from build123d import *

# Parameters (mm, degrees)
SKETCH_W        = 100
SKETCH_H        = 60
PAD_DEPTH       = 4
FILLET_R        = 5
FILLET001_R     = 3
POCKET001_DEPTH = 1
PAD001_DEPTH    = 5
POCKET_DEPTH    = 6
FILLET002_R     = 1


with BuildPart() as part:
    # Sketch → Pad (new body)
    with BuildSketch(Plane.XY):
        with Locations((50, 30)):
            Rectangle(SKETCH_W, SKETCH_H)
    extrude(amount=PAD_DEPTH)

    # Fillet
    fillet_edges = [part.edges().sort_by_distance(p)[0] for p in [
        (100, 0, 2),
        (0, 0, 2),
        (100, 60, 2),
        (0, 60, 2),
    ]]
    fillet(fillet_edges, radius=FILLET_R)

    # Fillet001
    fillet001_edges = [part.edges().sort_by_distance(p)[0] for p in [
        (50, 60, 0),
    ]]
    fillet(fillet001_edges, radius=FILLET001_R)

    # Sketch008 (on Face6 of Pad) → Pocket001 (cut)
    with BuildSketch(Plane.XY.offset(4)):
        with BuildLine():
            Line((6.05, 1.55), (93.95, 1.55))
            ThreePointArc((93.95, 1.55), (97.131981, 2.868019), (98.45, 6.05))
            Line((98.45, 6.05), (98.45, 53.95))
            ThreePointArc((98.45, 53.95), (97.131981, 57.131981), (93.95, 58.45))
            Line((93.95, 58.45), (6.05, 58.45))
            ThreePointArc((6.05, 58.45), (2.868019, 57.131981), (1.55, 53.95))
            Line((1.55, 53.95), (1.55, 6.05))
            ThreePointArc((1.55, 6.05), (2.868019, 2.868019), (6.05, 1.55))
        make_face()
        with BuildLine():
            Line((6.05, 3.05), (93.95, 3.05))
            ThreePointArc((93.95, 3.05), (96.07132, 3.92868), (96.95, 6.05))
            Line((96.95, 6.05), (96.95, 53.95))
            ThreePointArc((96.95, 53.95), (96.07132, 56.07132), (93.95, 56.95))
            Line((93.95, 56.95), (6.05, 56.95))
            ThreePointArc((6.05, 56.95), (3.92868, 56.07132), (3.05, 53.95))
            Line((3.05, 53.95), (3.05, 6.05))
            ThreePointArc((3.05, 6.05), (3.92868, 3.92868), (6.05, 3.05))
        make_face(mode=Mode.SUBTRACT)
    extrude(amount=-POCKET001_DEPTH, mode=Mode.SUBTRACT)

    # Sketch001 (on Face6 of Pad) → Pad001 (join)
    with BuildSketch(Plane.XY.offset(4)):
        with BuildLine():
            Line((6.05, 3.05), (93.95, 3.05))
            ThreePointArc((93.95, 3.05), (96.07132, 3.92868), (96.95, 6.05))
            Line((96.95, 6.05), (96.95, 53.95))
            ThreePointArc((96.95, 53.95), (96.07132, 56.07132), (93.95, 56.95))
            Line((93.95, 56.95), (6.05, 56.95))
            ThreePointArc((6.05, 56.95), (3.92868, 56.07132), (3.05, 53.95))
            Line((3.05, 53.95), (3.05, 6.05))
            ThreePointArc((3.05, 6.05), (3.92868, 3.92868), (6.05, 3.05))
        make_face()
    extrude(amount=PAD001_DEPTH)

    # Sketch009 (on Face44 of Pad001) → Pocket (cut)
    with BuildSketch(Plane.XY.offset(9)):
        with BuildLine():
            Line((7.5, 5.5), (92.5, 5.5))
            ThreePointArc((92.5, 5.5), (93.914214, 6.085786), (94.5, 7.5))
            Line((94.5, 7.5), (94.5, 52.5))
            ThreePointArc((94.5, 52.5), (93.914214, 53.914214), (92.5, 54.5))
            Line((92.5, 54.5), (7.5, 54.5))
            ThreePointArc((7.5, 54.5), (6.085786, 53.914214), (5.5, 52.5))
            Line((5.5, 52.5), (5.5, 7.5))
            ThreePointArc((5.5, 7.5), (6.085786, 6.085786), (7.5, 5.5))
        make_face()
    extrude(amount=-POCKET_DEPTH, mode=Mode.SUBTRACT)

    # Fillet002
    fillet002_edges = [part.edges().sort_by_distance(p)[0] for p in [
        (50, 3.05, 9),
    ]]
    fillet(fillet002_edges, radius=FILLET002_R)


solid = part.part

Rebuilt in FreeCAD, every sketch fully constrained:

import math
import FreeCAD as App
import Part
import Sketcher

V = App.Vector
Q = App.Units.Quantity


def edges_at(feature, points):
    """Names of the edges that pass closest to the given points."""
    edges = feature.Shape.Edges
    near = lambda p: min(range(len(edges)), key=lambda i: edges[i].distToShape(Part.Vertex(*p))[0])
    return sorted({f"Edge{near(p) + 1}" for p in points})

doc = App.newDocument("Part")
body = doc.addObject("PartDesign::Body", "Body")

# Sketch on XY plane
sketch1 = doc.addObject("Sketcher::SketchObject", "Sketch")
body.addObject(sketch1)
sketch1.AttachmentSupport = (doc.XY_Plane, [""])
sketch1.MapMode = "FlatFace"
sketch1.addGeometry(Part.LineSegment(V(0, 60, 0), V(0, 0, 0)), False)
sketch1.addGeometry(Part.LineSegment(V(0, 0, 0), V(100, 0, 0)), False)
sketch1.addGeometry(Part.LineSegment(V(100, 0, 0), V(100, 60, 0)), False)
sketch1.addGeometry(Part.LineSegment(V(100, 60, 0), V(0, 60, 0)), False)
sketch1.addConstraint(Sketcher.Constraint("Coincident", 0, 2, 1, 1))
sketch1.addConstraint(Sketcher.Constraint("Coincident", 1, 2, 2, 1))
sketch1.addConstraint(Sketcher.Constraint("Coincident", 2, 2, 3, 1))
sketch1.addConstraint(Sketcher.Constraint("Coincident", 3, 2, 0, 1))
sketch1.addConstraint(Sketcher.Constraint("Vertical", 0))
sketch1.addConstraint(Sketcher.Constraint("Horizontal", 1))
sketch1.addConstraint(Sketcher.Constraint("Vertical", 2))
sketch1.addConstraint(Sketcher.Constraint("Horizontal", 3))
sketch1.addConstraint(Sketcher.Constraint("Coincident", 0, 2, -1, 1))
sketch1.addConstraint(Sketcher.Constraint("DistanceX", 1, 1, 1, 2, Q("100 mm")))
sketch1.addConstraint(Sketcher.Constraint("DistanceY", 0, 2, 0, 1, Q("60 mm")))
pad1 = doc.addObject("PartDesign::Pad", "Pad")
body.addObject(pad1)
pad1.Profile = sketch1
pad1.Length = 4
doc.recompute()

fillet = doc.addObject("PartDesign::Fillet", "Fillet")
body.addObject(fillet)
fillet.Base = (pad1, edges_at(pad1, [
    (100, 0, 2),
    (0, 0, 2),
    (100, 60, 2),
    (0, 60, 2),
]))
fillet.Radius = 5
doc.recompute()

fillet2 = doc.addObject("PartDesign::Fillet", "Fillet001")
body.addObject(fillet2)
fillet2.Base = (fillet, edges_at(fillet, [(50, 60, 0)]))
fillet2.Radius = 3

# Sketch on XY plane
sketch2 = doc.addObject("Sketcher::SketchObject", "Sketch001")
body.addObject(sketch2)
sketch2.AttachmentSupport = (doc.XY_Plane, [""])
sketch2.MapMode = "FlatFace"
sketch2.AttachmentOffset = App.Placement(V(0, 0, 4), App.Rotation())
sketch2.addGeometry(Part.LineSegment(V(6, 1.6, 0), V(94, 1.6, 0)), False)
sketch2.addGeometry(Part.ArcOfCircle(Part.Circle(V(94, 6, 0), V(0, 0, 1), 4.5), math.radians(-90), math.radians(0)), False)
sketch2.addGeometry(Part.LineSegment(V(98.5, 6, 0), V(98.5, 54, 0)), False)
sketch2.addGeometry(Part.ArcOfCircle(Part.Circle(V(94, 54, 0), V(0, 0, 1), 4.5), math.radians(0), math.radians(90)), False)
sketch2.addGeometry(Part.LineSegment(V(94, 58.5, 0), V(6, 58.5, 0)), False)
sketch2.addGeometry(Part.ArcOfCircle(Part.Circle(V(6, 54, 0), V(0, 0, 1), 4.5), math.radians(90), math.radians(180)), False)
sketch2.addGeometry(Part.LineSegment(V(1.6, 54, 0), V(1.6, 6, 0)), False)
sketch2.addGeometry(Part.ArcOfCircle(Part.Circle(V(6, 6, 0), V(0, 0, 1), 4.5), math.radians(180), math.radians(270)), False)
sketch2.addGeometry(Part.LineSegment(V(94, 3, 0), V(6, 3, 0)), False)
sketch2.addGeometry(Part.ArcOfCircle(Part.Circle(V(6.1, 6.1, 0), V(0, 0, 1), 3), math.radians(-180), math.radians(-90)), False)
sketch2.addGeometry(Part.LineSegment(V(3, 6, 0), V(3, 54, 0)), False)
sketch2.addGeometry(Part.ArcOfCircle(Part.Circle(V(6.1, 53.9, 0), V(0, 0, 1), 3), math.radians(90), math.radians(180)), False)
sketch2.addGeometry(Part.LineSegment(V(6, 57, 0), V(94, 57, 0)), False)
sketch2.addGeometry(Part.ArcOfCircle(Part.Circle(V(93.9, 53.9, 0), V(0, 0, 1), 3), math.radians(0), math.radians(90)), False)
sketch2.addGeometry(Part.LineSegment(V(97, 54, 0), V(97, 6, 0)), False)
sketch2.addGeometry(Part.ArcOfCircle(Part.Circle(V(93.9, 6.1, 0), V(0, 0, 1), 3), math.radians(-90), math.radians(0)), False)
sketch2.addConstraint(Sketcher.Constraint("Tangent", 0, 2, 1, 1))
sketch2.addConstraint(Sketcher.Constraint("Tangent", 1, 2, 2, 1))
sketch2.addConstraint(Sketcher.Constraint("Tangent", 2, 2, 3, 1))
sketch2.addConstraint(Sketcher.Constraint("Tangent", 3, 2, 4, 1))
sketch2.addConstraint(Sketcher.Constraint("Tangent", 4, 2, 5, 1))
sketch2.addConstraint(Sketcher.Constraint("Tangent", 5, 2, 6, 1))
sketch2.addConstraint(Sketcher.Constraint("Tangent", 6, 2, 7, 1))
sketch2.addConstraint(Sketcher.Constraint("Tangent", 7, 2, 0, 1))
sketch2.addConstraint(Sketcher.Constraint("Tangent", 8, 2, 9, 2))
sketch2.addConstraint(Sketcher.Constraint("Tangent", 9, 1, 10, 1))
sketch2.addConstraint(Sketcher.Constraint("Tangent", 10, 2, 11, 2))
sketch2.addConstraint(Sketcher.Constraint("Tangent", 11, 1, 12, 1))
sketch2.addConstraint(Sketcher.Constraint("Tangent", 12, 2, 13, 2))
sketch2.addConstraint(Sketcher.Constraint("Tangent", 13, 1, 14, 1))
sketch2.addConstraint(Sketcher.Constraint("Tangent", 14, 2, 15, 2))
sketch2.addConstraint(Sketcher.Constraint("Tangent", 15, 1, 8, 1))
sketch2.addConstraint(Sketcher.Constraint("Horizontal", 0))
sketch2.addConstraint(Sketcher.Constraint("Vertical", 2))
sketch2.addConstraint(Sketcher.Constraint("Horizontal", 4))
sketch2.addConstraint(Sketcher.Constraint("Vertical", 6))
sketch2.addConstraint(Sketcher.Constraint("Horizontal", 8))
sketch2.addConstraint(Sketcher.Constraint("Vertical", 10))
sketch2.addConstraint(Sketcher.Constraint("Horizontal", 12))
sketch2.addConstraint(Sketcher.Constraint("Vertical", 14))
sketch2.addConstraint(Sketcher.Constraint("Coincident", 9, 3, 7, 3))
sketch2.addConstraint(Sketcher.Constraint("Coincident", 11, 3, 5, 3))
sketch2.addConstraint(Sketcher.Constraint("Coincident", 13, 3, 3, 3))
sketch2.addConstraint(Sketcher.Constraint("Equal", 1, 3))
sketch2.addConstraint(Sketcher.Constraint("Equal", 3, 5))
sketch2.addConstraint(Sketcher.Constraint("Equal", 5, 7))
sketch2.addConstraint(Sketcher.Constraint("Equal", 13, 15))
sketch2.addConstraint(Sketcher.Constraint("Radius", 9, Q("3.000001 mm")))
sketch2.addConstraint(Sketcher.Constraint("Radius", 1, Q("4.499998 mm")))
sketch2.addConstraint(Sketcher.Constraint("DistanceX", 0, 1, 0, 2, Q("87.9 mm")))
sketch2.addConstraint(Sketcher.Constraint("DistanceY", 2, 1, 2, 2, Q("47.9 mm")))
sketch2.addConstraint(Sketcher.Constraint("DistanceX", -1, 1, 1, 3, Q("93.950002 mm")))
sketch2.addConstraint(Sketcher.Constraint("DistanceY", -1, 1, 1, 3, Q("6.049998 mm")))
pocket1 = doc.addObject("PartDesign::Pocket", "Pocket")
body.addObject(pocket1)
pocket1.Profile = sketch2
pocket1.Length = 1

# Sketch on XY plane
sketch3 = doc.addObject("Sketcher::SketchObject", "Sketch002")
body.addObject(sketch3)
sketch3.AttachmentSupport = (doc.XY_Plane, [""])
sketch3.MapMode = "FlatFace"
sketch3.AttachmentOffset = App.Placement(V(0, 0, 4), App.Rotation())
sketch3.addGeometry(Part.LineSegment(V(6, 3, 0), V(94, 3, 0)), False)
sketch3.addGeometry(Part.ArcOfCircle(Part.Circle(V(93.9, 6.1, 0), V(0, 0, 1), 3), math.radians(-90), math.radians(0)), False)
sketch3.addGeometry(Part.LineSegment(V(97, 6, 0), V(97, 54, 0)), False)
sketch3.addGeometry(Part.ArcOfCircle(Part.Circle(V(93.9, 53.9, 0), V(0, 0, 1), 3), math.radians(0), math.radians(90)), False)
sketch3.addGeometry(Part.LineSegment(V(94, 57, 0), V(6, 57, 0)), False)
sketch3.addGeometry(Part.ArcOfCircle(Part.Circle(V(6.1, 53.9, 0), V(0, 0, 1), 3), math.radians(90), math.radians(180)), False)
sketch3.addGeometry(Part.LineSegment(V(3, 54, 0), V(3, 6, 0)), False)
sketch3.addGeometry(Part.ArcOfCircle(Part.Circle(V(6.1, 6.1, 0), V(0, 0, 1), 3), math.radians(-180), math.radians(-90)), False)
sketch3.addConstraint(Sketcher.Constraint("Tangent", 0, 2, 1, 1))
sketch3.addConstraint(Sketcher.Constraint("Tangent", 1, 2, 2, 1))
sketch3.addConstraint(Sketcher.Constraint("Tangent", 2, 2, 3, 1))
sketch3.addConstraint(Sketcher.Constraint("Tangent", 3, 2, 4, 1))
sketch3.addConstraint(Sketcher.Constraint("Tangent", 4, 2, 5, 1))
sketch3.addConstraint(Sketcher.Constraint("Tangent", 5, 2, 6, 1))
sketch3.addConstraint(Sketcher.Constraint("Tangent", 6, 2, 7, 1))
sketch3.addConstraint(Sketcher.Constraint("Tangent", 7, 2, 0, 1))
sketch3.addConstraint(Sketcher.Constraint("Horizontal", 0))
sketch3.addConstraint(Sketcher.Constraint("Vertical", 2))
sketch3.addConstraint(Sketcher.Constraint("Horizontal", 4))
sketch3.addConstraint(Sketcher.Constraint("Vertical", 6))
sketch3.addConstraint(Sketcher.Constraint("Equal", 1, 3))
sketch3.addConstraint(Sketcher.Constraint("Equal", 3, 5))
sketch3.addConstraint(Sketcher.Constraint("Equal", 5, 7))
sketch3.addConstraint(Sketcher.Constraint("Radius", 1, Q("3.000001 mm")))
sketch3.addConstraint(Sketcher.Constraint("DistanceX", 0, 1, 0, 2, Q("87.9 mm")))
sketch3.addConstraint(Sketcher.Constraint("DistanceY", 2, 1, 2, 2, Q("47.9 mm")))
sketch3.addConstraint(Sketcher.Constraint("DistanceX", -1, 1, 1, 3, Q("93.949999 mm")))
sketch3.addConstraint(Sketcher.Constraint("DistanceY", -1, 1, 1, 3, Q("6.050001 mm")))
pad2 = doc.addObject("PartDesign::Pad", "Pad001")
body.addObject(pad2)
pad2.Profile = sketch3
pad2.Length = 5

# Sketch on XY plane
sketch4 = doc.addObject("Sketcher::SketchObject", "Sketch003")
body.addObject(sketch4)
sketch4.AttachmentSupport = (doc.XY_Plane, [""])
sketch4.MapMode = "FlatFace"
sketch4.AttachmentOffset = App.Placement(V(0, 0, 9), App.Rotation())
sketch4.addGeometry(Part.LineSegment(V(7.5, 5.5, 0), V(92.5, 5.5, 0)), False)
sketch4.addGeometry(Part.ArcOfCircle(Part.Circle(V(92.5, 7.5, 0), V(0, 0, 1), 2), math.radians(-90), math.radians(0)), False)
sketch4.addGeometry(Part.LineSegment(V(94.5, 7.5, 0), V(94.5, 52.5, 0)), False)
sketch4.addGeometry(Part.ArcOfCircle(Part.Circle(V(92.5, 52.5, 0), V(0, 0, 1), 2), math.radians(0), math.radians(90)), False)
sketch4.addGeometry(Part.LineSegment(V(92.5, 54.5, 0), V(7.5, 54.5, 0)), False)
sketch4.addGeometry(Part.ArcOfCircle(Part.Circle(V(7.5, 52.5, 0), V(0, 0, 1), 2), math.radians(90), math.radians(180)), False)
sketch4.addGeometry(Part.LineSegment(V(5.5, 52.5, 0), V(5.5, 7.5, 0)), False)
sketch4.addGeometry(Part.ArcOfCircle(Part.Circle(V(7.5, 7.5, 0), V(0, 0, 1), 2), math.radians(180), math.radians(270)), False)
sketch4.addConstraint(Sketcher.Constraint("Tangent", 0, 2, 1, 1))
sketch4.addConstraint(Sketcher.Constraint("Tangent", 1, 2, 2, 1))
sketch4.addConstraint(Sketcher.Constraint("Tangent", 2, 2, 3, 1))
sketch4.addConstraint(Sketcher.Constraint("Tangent", 3, 2, 4, 1))
sketch4.addConstraint(Sketcher.Constraint("Tangent", 4, 2, 5, 1))
sketch4.addConstraint(Sketcher.Constraint("Tangent", 5, 2, 6, 1))
sketch4.addConstraint(Sketcher.Constraint("Tangent", 6, 2, 7, 1))
sketch4.addConstraint(Sketcher.Constraint("Tangent", 7, 2, 0, 1))
sketch4.addConstraint(Sketcher.Constraint("Horizontal", 0))
sketch4.addConstraint(Sketcher.Constraint("Vertical", 2))
sketch4.addConstraint(Sketcher.Constraint("Horizontal", 4))
sketch4.addConstraint(Sketcher.Constraint("Vertical", 6))
sketch4.addConstraint(Sketcher.Constraint("Equal", 1, 3))
sketch4.addConstraint(Sketcher.Constraint("Equal", 3, 5))
sketch4.addConstraint(Sketcher.Constraint("Equal", 5, 7))
sketch4.addConstraint(Sketcher.Constraint("Radius", 1, Q("1.999999 mm")))
sketch4.addConstraint(Sketcher.Constraint("DistanceX", 0, 1, 0, 2, Q("85 mm")))
sketch4.addConstraint(Sketcher.Constraint("DistanceY", 2, 1, 2, 2, Q("45 mm")))
sketch4.addConstraint(Sketcher.Constraint("DistanceX", -1, 1, 1, 3, Q("92.500001 mm")))
sketch4.addConstraint(Sketcher.Constraint("DistanceY", -1, 1, 1, 3, Q("7.499999 mm")))
pocket2 = doc.addObject("PartDesign::Pocket", "Pocket001")
body.addObject(pocket2)
pocket2.Profile = sketch4
pocket2.Length = 6
doc.recompute()

fillet3 = doc.addObject("PartDesign::Fillet", "Fillet002")
body.addObject(fillet3)
fillet3.Base = (pocket2, edges_at(pocket2, [(50, 3.05, 9)]))
fillet3.Radius = 1

doc.recompute()
